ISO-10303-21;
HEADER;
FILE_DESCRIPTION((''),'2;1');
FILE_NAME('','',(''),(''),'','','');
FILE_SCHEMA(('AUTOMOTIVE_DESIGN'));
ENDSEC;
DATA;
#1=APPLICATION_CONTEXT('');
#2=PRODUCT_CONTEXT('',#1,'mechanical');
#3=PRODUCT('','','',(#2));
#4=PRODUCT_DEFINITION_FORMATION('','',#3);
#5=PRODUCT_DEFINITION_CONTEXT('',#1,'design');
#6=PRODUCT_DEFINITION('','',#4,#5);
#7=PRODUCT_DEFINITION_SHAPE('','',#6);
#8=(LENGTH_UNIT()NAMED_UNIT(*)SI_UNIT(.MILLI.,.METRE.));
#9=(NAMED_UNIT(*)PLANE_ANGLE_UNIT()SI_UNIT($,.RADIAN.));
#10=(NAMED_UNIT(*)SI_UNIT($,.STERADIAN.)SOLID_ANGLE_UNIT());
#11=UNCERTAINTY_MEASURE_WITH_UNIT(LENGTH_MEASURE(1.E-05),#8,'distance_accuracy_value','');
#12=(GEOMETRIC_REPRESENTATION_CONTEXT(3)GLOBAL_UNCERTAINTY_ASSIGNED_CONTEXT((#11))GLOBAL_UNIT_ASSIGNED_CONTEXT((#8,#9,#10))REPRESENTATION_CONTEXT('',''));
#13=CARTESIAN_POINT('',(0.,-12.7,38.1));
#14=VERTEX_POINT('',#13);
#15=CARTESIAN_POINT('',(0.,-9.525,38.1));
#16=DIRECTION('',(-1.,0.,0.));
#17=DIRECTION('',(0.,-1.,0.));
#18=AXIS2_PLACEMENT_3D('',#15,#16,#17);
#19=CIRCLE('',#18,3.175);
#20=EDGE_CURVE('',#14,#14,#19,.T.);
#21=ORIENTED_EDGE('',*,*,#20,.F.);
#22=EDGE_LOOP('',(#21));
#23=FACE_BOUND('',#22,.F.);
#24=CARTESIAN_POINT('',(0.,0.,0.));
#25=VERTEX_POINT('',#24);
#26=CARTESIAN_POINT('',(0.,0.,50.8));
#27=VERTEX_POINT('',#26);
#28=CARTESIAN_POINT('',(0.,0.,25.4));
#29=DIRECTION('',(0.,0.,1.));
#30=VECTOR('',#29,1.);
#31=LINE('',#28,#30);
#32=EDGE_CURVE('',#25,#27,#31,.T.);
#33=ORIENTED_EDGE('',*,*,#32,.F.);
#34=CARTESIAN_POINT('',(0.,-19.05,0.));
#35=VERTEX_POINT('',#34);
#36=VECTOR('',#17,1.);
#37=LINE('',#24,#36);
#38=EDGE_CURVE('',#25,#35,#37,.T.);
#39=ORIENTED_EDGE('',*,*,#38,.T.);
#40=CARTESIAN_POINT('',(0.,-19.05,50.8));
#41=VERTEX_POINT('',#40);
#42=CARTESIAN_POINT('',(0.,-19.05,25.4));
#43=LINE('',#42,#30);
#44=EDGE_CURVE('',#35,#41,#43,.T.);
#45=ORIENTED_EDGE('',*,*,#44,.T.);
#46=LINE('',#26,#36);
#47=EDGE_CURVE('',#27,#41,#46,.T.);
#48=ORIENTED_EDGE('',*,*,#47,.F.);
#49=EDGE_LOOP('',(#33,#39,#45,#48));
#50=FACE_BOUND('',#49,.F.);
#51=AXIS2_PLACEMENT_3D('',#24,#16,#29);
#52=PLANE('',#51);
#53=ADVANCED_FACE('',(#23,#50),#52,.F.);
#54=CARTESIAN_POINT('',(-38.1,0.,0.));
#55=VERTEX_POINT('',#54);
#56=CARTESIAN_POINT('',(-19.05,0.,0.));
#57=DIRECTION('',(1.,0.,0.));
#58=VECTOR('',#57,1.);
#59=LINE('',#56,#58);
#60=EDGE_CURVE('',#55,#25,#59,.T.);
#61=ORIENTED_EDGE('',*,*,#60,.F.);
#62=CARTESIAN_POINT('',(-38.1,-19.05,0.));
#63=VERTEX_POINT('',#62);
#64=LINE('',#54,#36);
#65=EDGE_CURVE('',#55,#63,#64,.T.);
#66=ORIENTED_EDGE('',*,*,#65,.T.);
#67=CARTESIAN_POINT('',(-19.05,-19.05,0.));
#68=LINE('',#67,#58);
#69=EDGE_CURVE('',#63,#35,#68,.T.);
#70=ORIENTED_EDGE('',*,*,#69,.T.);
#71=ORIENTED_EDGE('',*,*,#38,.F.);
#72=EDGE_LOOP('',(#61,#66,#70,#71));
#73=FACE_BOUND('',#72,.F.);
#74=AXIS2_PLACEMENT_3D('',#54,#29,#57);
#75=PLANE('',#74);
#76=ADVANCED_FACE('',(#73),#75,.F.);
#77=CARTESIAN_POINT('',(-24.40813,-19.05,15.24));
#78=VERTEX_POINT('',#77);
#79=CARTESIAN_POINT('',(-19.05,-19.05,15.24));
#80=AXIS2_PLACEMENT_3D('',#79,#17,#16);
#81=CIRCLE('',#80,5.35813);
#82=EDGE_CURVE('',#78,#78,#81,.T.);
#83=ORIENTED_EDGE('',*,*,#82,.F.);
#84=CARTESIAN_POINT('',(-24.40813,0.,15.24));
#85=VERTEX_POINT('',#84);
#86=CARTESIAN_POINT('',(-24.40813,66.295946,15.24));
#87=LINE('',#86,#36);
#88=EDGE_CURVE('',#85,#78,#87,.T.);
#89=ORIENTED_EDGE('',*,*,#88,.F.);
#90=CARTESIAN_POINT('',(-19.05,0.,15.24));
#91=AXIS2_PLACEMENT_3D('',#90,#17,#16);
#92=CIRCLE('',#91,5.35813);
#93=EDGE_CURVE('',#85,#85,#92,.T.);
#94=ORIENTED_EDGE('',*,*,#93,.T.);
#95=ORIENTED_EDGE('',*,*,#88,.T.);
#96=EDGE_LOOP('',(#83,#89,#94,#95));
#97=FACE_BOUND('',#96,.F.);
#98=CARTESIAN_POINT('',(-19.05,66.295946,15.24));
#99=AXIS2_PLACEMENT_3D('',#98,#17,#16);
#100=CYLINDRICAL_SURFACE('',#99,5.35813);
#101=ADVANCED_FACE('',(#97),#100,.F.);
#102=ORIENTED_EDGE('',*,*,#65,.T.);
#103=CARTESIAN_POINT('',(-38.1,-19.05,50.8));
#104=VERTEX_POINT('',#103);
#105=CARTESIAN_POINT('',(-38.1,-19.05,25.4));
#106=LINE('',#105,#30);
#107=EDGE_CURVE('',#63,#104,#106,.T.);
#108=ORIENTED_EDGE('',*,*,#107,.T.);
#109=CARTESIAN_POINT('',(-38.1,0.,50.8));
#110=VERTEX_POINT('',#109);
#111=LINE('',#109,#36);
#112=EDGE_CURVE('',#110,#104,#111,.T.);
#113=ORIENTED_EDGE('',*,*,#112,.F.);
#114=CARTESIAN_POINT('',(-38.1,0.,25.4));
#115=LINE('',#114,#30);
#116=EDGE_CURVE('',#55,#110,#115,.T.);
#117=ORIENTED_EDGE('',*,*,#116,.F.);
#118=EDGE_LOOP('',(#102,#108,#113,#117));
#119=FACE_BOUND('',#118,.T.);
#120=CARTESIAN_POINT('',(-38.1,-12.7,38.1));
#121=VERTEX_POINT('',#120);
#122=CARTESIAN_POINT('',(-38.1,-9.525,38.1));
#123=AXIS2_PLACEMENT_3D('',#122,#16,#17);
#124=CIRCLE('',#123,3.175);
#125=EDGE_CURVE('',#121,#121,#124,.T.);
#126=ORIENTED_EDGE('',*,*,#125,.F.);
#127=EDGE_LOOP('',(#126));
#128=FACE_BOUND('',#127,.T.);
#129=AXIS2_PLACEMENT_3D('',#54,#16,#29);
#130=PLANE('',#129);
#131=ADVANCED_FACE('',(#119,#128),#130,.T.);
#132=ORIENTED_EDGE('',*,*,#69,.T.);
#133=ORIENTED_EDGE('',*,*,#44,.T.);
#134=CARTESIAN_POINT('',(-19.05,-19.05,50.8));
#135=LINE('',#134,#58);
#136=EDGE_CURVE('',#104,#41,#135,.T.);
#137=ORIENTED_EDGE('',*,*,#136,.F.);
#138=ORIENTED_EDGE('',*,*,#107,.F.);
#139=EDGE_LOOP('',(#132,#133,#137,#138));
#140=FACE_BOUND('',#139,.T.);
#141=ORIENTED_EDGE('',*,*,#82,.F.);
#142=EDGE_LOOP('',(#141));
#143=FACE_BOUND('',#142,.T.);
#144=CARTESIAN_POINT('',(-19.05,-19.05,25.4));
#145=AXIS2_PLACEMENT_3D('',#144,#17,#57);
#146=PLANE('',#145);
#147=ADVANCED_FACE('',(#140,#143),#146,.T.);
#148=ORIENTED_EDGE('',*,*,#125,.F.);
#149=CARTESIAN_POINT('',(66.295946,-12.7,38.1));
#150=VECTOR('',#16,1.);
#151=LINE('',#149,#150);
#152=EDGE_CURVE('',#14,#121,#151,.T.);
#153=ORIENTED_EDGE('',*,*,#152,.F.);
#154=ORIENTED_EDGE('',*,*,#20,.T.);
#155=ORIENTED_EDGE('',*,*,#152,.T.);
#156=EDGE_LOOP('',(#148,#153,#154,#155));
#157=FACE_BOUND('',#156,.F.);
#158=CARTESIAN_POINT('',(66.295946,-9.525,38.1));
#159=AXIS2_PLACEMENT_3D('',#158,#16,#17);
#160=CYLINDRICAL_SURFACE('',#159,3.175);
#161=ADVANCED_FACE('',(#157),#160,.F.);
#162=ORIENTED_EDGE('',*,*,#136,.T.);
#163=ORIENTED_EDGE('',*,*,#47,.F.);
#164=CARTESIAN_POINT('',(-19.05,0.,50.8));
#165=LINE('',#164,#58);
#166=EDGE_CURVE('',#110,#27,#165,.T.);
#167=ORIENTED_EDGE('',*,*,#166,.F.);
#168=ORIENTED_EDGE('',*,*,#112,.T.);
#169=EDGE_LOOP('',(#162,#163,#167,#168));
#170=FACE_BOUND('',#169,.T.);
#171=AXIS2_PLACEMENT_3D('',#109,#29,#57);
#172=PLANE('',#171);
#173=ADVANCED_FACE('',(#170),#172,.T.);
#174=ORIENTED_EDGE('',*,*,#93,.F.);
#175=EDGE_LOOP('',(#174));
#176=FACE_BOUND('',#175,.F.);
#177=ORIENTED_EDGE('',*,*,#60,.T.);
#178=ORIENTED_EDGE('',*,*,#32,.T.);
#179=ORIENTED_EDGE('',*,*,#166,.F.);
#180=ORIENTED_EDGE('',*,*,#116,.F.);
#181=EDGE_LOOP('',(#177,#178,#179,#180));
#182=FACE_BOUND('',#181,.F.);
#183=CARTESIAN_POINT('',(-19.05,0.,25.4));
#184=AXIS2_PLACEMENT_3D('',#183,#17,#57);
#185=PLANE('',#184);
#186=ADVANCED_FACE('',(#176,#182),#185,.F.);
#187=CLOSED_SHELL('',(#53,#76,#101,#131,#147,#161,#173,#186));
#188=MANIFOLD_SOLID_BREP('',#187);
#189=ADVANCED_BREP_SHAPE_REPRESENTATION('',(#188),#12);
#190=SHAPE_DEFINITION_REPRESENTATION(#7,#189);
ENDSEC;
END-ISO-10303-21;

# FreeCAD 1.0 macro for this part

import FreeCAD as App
import Part
import Sketcher

V = App.Vector
Q = App.Units.Quantity

doc = App.newDocument("Part")
params = doc.addObject("Spreadsheet::Sheet", "Params")
for row, (alias, value) in enumerate([
    ("sketch1_height", "2 in"),
    ("sketch1_width", "1.5 in"),
    ("pad1_length", "0.75 in"),
    ("sketch2_diameter", "0.25 in"),
    ("hole_diameter", "0.25 in"),
    ("hole2_diameter", "0.4219 in"),
], start=1):
    params.set(f"A{row}", alias)
    params.set(f"B{row}", "=" + value)
    params.setAlias(f"B{row}", alias)

body = doc.addObject("PartDesign::Body", "Body")

# Sketch on XZ plane
sketch1 = body.newObject("Sketcher::SketchObject", "Sketch")
sketch1.AttachmentSupport = (doc.getObject("XZ_Plane"), [""])
sketch1.MapMode = "FlatFace"
sketch1.addGeometry([
    Part.LineSegment(V(-38.1, 50.8, 0), V(-38.1, 0, 0)),
    Part.LineSegment(V(-38.1, 0, 0), V(0, 0, 0)),
    Part.LineSegment(V(0, 0, 0), V(0, 50.8, 0)),
    Part.LineSegment(V(0, 50.8, 0), V(-38.1, 50.8, 0)),
], False)
sketch1.addConstraint([
    Sketcher.Constraint("Coincident", 0, 2, 1, 1),
    Sketcher.Constraint("Coincident", 1, 2, 2, 1),
    Sketcher.Constraint("Coincident", 2, 2, 3, 1),
    Sketcher.Constraint("Coincident", 3, 2, 0, 1),
    Sketcher.Constraint("Vertical", 0),
    Sketcher.Constraint("Horizontal", 1),
    Sketcher.Constraint("Vertical", 2),
    Sketcher.Constraint("Horizontal", 3),
    Sketcher.Constraint("Coincident", 1, 2, -1, 1),
    Sketcher.Constraint("DistanceY", 0, 2, 0, 1, Q("2 in")),
    Sketcher.Constraint("DistanceX", 1, 1, 1, 2, Q("1.5 in")),
])
sketch1.setExpression("Constraints[9]", "Params.sketch1_height")
sketch1.setExpression("Constraints[10]", "Params.sketch1_width")
pad1 = body.newObject("PartDesign::Pad", "Pad")
pad1.Profile = sketch1
pad1.setExpression("Length", "Params.pad1_length")

# Sketch on YZ plane
sketch2 = body.newObject("Sketcher::SketchObject", "Sketch001")
sketch2.AttachmentSupport = (doc.getObject("YZ_Plane"), [""])
sketch2.MapMode = "FlatFace"
sketch2.addGeometry(Part.Circle(V(-9.525, 38.1, 0), V(0, 0, 1), 3.175), False)
sketch2.addConstraint([
    Sketcher.Constraint("Diameter", 0, Q("0.25 in")),
    Sketcher.Constraint("DistanceY", -1, 1, 0, 3, Q("1.5 in")),
    Sketcher.Constraint("DistanceX", 0, 3, -1, 1, Q("0.375 in")),
])
sketch2.setExpression("Constraints[0]", "Params.sketch2_diameter")
doc.recompute()
hole = body.newObject("PartDesign::Hole", "Hole")
hole.Profile = sketch2
hole.ThreadType = "None"
hole.setExpression("Diameter", "Params.hole_diameter")
hole.DepthType = "ThroughAll"

# Sketch on XZ plane
sketch3 = body.newObject("Sketcher::SketchObject", "Sketch002")
sketch3.AttachmentSupport = (doc.getObject("XZ_Plane"), [""])
sketch3.MapMode = "FlatFace"
sketch3.addGeometry(Part.Circle(V(-19.05, 15.24, 0), V(0, 0, 1), 5.35813), False)
sketch3.addConstraint([
    Sketcher.Constraint("Diameter", 0, Q("0.4219 in")),
    Sketcher.Constraint("DistanceY", -1, 1, 0, 3, Q("0.6 in")),
    Sketcher.Constraint("DistanceX", 0, 3, -1, 1, Q("0.75 in")),
])
doc.recompute()
hole2 = body.newObject("PartDesign::Hole", "Hole001")
hole2.Profile = sketch3
hole2.ThreadType = "None"
hole2.setExpression("Diameter", "Params.hole2_diameter")
hole2.DepthType = "ThroughAll"
hole2.Reversed = True

doc.recompute()
